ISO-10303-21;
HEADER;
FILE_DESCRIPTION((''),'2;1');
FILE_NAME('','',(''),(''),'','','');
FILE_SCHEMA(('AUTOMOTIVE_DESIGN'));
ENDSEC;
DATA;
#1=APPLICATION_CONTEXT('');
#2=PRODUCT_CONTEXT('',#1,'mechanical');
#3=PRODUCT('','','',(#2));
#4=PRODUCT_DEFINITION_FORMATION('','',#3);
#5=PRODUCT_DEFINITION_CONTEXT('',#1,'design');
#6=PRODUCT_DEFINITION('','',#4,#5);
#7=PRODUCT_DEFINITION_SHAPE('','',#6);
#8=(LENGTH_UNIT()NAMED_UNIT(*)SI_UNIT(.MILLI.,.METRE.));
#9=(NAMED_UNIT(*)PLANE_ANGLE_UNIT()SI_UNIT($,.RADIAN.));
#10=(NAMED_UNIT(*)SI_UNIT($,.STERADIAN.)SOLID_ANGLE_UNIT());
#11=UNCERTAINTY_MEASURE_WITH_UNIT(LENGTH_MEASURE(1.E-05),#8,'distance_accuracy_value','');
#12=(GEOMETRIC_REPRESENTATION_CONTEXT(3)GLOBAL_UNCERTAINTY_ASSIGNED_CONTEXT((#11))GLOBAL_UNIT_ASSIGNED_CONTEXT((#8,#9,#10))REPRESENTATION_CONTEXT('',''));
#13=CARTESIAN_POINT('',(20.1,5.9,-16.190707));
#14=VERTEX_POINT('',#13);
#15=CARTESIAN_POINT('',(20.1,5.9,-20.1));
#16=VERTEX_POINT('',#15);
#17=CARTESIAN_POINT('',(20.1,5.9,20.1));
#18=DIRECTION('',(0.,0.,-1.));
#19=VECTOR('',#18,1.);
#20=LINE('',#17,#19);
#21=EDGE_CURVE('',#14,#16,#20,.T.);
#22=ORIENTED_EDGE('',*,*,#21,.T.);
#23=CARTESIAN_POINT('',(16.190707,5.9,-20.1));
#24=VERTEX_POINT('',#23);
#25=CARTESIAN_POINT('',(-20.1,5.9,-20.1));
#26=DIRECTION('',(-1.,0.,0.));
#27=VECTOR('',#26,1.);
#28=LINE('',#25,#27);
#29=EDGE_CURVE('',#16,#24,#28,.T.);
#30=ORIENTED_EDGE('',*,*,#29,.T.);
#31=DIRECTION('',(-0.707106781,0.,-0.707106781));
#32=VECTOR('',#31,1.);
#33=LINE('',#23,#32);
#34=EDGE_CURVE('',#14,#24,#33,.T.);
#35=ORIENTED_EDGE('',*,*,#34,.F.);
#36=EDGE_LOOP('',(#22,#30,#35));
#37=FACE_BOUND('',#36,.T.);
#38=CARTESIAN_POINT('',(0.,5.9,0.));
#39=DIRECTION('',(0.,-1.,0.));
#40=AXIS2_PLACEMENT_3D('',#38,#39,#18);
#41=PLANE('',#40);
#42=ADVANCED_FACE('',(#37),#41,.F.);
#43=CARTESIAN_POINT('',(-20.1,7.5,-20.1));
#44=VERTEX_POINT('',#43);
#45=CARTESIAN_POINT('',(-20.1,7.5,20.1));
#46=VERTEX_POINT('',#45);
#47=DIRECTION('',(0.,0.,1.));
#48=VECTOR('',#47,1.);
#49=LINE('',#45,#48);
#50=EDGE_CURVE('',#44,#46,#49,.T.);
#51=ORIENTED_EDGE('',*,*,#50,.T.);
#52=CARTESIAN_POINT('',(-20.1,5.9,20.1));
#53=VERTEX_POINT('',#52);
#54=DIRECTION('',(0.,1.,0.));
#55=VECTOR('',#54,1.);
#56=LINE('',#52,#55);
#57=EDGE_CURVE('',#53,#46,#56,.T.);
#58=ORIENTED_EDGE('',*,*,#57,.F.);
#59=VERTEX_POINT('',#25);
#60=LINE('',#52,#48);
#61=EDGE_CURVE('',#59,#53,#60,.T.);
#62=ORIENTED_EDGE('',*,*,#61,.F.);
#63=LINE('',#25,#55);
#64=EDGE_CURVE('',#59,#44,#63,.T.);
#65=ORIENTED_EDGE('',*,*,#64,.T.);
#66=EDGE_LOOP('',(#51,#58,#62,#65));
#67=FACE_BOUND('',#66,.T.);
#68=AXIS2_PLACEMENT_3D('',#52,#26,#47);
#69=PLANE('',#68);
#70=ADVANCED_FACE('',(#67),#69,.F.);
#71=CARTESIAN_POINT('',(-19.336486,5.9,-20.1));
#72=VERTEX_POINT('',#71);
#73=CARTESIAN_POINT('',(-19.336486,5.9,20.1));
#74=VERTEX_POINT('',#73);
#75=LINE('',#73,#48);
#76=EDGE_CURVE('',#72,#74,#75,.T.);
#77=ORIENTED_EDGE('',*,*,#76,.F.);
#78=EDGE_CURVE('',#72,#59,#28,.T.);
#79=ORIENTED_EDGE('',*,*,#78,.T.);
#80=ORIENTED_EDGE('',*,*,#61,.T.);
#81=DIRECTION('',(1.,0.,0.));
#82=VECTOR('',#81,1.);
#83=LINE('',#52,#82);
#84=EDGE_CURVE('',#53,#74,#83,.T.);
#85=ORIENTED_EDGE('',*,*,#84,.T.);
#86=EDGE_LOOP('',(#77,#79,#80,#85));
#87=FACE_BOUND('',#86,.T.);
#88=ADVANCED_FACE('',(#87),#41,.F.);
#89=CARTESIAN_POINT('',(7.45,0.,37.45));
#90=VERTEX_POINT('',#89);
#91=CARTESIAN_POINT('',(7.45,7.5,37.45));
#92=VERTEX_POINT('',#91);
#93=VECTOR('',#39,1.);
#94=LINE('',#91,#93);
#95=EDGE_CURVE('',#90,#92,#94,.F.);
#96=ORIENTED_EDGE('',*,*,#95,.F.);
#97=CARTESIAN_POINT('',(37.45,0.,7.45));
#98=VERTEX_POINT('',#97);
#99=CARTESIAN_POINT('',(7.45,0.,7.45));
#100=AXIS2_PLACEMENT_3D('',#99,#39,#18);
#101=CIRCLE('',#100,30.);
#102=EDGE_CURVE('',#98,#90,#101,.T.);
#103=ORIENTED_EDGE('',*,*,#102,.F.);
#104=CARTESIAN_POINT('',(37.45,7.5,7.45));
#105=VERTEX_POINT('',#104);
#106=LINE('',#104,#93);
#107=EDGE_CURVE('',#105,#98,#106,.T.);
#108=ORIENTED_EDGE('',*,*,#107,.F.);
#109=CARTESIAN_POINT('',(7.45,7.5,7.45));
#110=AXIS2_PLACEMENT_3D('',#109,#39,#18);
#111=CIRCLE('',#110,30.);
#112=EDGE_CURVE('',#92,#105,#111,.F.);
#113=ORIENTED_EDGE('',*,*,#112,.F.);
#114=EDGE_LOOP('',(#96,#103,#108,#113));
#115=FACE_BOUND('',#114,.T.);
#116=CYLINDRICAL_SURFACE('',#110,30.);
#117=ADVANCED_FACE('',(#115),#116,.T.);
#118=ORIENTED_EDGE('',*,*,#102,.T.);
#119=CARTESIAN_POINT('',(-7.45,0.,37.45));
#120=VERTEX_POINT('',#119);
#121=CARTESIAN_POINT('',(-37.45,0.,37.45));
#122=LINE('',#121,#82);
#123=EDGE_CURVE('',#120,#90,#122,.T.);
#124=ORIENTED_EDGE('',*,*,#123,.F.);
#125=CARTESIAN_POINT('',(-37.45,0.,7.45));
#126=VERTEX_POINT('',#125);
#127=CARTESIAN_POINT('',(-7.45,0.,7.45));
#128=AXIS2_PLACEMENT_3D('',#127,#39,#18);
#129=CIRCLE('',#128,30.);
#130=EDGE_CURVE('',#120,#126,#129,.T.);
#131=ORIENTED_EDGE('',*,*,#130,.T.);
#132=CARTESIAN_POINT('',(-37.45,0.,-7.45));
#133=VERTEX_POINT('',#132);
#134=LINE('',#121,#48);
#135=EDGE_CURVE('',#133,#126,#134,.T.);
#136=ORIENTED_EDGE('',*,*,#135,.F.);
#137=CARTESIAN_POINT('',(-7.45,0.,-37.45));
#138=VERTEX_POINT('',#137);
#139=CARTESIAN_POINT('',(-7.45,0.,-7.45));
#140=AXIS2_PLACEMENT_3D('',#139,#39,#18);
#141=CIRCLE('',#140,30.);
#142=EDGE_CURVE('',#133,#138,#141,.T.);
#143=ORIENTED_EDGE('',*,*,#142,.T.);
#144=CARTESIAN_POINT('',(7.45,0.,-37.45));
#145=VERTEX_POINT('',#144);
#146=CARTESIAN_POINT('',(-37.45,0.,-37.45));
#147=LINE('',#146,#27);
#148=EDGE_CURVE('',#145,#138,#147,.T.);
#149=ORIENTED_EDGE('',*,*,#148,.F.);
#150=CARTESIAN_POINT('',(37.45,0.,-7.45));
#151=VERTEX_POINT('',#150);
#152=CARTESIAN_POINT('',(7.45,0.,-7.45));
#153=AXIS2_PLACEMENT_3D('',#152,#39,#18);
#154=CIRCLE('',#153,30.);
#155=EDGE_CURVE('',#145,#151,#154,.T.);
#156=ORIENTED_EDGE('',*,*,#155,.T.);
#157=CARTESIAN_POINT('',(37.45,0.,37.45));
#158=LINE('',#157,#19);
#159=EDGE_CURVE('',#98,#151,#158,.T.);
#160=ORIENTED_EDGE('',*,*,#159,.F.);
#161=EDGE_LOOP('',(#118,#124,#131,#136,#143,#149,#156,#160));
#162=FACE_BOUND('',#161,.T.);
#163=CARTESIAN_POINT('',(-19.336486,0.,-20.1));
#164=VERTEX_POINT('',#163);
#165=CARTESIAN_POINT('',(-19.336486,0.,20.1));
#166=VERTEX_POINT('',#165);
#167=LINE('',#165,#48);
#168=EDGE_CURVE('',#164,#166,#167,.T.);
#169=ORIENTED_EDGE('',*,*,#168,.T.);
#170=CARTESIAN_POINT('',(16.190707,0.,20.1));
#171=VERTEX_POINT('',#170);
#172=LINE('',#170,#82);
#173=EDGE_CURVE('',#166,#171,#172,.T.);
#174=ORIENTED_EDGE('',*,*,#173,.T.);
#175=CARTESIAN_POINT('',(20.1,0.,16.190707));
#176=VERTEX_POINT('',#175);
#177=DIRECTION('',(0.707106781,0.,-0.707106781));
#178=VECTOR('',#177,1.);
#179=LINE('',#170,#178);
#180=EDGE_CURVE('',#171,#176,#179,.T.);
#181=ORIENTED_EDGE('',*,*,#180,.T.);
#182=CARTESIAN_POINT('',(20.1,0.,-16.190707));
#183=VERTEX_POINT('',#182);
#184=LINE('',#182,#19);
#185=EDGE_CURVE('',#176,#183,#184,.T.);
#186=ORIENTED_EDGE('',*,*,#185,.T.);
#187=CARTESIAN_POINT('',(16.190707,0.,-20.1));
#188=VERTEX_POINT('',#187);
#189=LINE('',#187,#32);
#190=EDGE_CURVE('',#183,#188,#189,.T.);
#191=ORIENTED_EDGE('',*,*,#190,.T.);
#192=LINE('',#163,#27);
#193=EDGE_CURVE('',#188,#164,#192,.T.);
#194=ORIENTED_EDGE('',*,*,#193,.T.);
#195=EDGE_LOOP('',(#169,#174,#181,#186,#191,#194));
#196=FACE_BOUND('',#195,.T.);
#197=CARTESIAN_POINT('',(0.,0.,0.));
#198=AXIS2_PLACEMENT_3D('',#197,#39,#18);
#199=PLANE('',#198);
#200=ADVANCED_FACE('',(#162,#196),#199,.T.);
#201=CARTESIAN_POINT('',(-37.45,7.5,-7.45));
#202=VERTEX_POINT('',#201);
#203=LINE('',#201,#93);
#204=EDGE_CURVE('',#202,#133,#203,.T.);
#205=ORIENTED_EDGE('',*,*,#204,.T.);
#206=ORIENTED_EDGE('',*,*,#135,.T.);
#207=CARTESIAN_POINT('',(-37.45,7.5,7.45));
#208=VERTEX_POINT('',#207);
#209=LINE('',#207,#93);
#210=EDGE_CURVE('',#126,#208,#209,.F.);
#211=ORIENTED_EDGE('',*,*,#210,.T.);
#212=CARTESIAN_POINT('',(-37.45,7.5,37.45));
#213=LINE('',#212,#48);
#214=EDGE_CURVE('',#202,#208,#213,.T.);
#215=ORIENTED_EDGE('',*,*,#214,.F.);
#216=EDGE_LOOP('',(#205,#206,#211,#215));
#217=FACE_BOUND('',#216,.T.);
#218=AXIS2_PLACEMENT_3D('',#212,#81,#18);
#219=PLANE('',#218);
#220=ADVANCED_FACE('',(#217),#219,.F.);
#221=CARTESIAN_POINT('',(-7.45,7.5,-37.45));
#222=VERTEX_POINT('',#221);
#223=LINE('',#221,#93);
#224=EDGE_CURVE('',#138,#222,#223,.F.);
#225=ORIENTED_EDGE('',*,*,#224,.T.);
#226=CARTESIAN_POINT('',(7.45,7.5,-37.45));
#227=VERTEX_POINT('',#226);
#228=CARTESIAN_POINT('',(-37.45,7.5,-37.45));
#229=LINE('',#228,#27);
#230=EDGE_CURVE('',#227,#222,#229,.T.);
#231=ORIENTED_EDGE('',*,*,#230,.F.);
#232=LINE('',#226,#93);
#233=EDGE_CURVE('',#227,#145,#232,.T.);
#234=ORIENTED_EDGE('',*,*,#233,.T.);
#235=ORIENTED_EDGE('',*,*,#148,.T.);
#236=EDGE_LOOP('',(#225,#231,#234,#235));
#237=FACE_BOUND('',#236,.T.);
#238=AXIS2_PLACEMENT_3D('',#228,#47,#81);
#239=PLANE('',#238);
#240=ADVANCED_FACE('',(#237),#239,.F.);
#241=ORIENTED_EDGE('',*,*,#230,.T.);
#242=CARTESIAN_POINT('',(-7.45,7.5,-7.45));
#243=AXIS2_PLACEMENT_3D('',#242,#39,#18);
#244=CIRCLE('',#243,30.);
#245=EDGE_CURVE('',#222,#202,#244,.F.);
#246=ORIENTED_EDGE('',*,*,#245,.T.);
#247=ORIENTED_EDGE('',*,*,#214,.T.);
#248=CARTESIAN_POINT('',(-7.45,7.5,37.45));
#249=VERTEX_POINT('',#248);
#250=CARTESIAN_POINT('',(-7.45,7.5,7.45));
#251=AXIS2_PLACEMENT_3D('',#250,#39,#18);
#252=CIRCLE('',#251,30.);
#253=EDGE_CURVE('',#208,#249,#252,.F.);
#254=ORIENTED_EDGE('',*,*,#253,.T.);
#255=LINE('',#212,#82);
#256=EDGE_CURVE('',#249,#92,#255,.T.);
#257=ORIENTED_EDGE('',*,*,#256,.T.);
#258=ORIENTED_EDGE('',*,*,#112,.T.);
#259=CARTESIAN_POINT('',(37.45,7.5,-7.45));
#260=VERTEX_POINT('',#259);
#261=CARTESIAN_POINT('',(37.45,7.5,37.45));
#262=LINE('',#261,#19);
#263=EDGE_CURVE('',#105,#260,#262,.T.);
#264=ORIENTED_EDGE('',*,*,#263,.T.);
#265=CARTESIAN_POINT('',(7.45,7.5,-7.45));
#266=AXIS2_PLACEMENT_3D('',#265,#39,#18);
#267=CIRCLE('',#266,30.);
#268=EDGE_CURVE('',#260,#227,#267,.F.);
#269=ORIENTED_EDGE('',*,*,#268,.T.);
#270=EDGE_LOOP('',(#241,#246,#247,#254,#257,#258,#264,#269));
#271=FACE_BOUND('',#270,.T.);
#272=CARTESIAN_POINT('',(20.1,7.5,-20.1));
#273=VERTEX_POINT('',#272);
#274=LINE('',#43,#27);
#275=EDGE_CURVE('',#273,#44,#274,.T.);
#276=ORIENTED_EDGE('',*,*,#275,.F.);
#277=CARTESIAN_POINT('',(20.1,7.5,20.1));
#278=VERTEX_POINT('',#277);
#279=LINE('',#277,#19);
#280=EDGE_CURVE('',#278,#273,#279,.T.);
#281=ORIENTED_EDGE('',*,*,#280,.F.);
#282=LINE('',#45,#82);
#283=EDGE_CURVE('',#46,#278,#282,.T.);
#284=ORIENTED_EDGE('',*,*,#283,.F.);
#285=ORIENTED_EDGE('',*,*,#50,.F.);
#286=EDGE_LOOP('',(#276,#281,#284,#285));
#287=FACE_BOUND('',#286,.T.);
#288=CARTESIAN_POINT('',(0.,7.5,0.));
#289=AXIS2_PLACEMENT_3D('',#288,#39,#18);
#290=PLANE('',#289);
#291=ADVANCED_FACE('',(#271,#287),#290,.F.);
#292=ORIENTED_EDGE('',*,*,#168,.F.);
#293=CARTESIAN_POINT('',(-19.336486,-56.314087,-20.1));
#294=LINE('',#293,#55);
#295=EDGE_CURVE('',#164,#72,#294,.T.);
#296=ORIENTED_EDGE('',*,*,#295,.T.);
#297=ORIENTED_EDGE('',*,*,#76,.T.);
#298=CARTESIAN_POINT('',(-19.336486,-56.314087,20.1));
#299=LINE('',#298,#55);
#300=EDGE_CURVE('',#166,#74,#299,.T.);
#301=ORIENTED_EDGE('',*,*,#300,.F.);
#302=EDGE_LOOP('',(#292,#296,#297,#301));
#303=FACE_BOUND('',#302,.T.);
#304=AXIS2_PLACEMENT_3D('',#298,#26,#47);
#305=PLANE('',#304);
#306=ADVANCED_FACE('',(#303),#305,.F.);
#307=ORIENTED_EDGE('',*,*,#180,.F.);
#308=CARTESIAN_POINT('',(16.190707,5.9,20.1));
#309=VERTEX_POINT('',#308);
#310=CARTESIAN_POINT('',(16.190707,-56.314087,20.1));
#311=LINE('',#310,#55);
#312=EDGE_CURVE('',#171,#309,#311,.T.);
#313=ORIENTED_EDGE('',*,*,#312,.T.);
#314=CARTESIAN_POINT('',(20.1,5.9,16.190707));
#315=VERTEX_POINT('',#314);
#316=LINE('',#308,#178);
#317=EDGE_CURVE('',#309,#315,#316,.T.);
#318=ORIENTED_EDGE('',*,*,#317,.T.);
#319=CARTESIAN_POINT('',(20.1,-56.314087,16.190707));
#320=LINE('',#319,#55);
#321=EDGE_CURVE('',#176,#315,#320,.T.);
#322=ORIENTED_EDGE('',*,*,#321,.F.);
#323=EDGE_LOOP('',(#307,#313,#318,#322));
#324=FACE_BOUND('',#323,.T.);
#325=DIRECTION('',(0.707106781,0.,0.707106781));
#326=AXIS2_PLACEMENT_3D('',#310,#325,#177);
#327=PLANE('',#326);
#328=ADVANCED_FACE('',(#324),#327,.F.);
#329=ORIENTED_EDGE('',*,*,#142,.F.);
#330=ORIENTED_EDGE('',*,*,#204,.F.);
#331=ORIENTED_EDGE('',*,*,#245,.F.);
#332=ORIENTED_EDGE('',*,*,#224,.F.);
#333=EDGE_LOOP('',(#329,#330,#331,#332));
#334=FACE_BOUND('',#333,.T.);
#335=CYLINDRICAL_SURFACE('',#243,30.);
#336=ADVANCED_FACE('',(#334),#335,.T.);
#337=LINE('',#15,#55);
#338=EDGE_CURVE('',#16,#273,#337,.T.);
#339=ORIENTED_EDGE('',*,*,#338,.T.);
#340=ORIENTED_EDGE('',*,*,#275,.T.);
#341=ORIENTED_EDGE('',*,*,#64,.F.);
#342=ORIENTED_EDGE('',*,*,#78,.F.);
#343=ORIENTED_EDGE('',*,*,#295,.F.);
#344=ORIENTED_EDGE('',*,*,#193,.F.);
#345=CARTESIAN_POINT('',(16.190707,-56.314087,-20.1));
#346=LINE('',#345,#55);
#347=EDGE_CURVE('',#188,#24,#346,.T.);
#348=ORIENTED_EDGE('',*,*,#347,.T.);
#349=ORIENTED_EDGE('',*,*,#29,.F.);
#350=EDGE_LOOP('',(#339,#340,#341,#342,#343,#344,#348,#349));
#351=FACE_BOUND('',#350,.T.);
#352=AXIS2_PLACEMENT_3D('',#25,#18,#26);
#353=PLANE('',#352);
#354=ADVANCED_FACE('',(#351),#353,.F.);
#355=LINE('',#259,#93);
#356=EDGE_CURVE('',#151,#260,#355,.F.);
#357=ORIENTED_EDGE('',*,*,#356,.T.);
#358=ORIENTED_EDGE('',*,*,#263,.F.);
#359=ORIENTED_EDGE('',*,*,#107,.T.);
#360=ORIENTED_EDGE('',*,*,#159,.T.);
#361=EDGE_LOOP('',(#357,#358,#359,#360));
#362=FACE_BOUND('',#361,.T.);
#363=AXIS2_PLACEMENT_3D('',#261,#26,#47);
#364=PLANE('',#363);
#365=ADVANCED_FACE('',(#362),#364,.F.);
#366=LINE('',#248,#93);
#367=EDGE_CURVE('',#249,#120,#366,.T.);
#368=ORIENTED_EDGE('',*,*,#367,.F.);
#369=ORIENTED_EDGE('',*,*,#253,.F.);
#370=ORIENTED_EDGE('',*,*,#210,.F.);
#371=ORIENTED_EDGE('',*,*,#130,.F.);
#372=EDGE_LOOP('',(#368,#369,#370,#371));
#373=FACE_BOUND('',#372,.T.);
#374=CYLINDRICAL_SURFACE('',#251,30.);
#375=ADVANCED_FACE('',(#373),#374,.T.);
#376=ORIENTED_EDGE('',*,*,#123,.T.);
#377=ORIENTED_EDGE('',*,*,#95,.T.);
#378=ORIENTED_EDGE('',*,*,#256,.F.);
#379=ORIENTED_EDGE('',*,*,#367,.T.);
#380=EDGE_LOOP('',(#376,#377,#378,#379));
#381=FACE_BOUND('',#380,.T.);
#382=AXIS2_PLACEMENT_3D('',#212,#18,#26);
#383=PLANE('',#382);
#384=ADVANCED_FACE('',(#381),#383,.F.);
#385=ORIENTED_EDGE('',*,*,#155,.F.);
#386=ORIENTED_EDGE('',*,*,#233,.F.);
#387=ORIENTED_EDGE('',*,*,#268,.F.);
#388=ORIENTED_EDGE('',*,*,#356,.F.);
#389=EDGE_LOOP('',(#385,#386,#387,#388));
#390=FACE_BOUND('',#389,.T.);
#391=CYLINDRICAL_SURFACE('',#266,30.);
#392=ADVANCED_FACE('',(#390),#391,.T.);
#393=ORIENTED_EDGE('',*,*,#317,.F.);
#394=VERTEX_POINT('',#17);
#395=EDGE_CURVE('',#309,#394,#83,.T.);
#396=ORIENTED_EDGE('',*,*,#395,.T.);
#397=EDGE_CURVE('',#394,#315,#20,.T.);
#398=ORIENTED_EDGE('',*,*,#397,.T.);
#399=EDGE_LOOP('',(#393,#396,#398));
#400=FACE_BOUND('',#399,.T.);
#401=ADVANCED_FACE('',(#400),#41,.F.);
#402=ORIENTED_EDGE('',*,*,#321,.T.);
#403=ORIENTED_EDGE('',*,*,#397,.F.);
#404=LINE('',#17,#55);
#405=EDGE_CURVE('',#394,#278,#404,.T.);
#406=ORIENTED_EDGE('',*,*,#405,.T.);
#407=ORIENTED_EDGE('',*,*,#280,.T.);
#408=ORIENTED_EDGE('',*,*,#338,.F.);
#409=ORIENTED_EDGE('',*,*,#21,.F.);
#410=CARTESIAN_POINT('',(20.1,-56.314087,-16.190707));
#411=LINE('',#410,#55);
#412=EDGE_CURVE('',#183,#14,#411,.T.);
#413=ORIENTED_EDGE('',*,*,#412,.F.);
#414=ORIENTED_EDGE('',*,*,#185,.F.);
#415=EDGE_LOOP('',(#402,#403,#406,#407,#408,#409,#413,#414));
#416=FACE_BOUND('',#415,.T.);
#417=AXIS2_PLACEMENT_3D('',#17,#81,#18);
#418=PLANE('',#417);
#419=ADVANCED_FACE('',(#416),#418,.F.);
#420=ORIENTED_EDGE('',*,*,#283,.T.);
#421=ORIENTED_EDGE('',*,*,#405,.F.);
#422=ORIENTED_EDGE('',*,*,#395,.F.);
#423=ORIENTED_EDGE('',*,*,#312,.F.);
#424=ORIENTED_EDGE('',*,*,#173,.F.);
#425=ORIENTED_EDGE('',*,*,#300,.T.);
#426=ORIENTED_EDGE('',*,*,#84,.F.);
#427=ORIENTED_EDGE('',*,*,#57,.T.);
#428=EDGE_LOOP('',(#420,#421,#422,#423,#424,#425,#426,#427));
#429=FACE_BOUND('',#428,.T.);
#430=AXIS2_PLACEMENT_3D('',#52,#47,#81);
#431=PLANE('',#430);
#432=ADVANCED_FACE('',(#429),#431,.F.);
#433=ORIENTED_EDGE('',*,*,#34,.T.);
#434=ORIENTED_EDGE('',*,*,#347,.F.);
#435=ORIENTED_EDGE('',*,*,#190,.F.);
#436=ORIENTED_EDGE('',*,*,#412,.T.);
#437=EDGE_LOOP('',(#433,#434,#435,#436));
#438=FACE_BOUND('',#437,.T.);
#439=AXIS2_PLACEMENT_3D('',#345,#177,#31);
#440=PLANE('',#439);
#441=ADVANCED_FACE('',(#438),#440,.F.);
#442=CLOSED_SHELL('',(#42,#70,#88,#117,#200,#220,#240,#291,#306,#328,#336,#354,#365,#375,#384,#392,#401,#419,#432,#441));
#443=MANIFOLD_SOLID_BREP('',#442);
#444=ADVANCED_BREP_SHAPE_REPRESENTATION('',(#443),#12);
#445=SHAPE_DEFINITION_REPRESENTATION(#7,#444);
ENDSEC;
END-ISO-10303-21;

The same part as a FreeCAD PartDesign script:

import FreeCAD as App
import Part
import Sketcher


def edges_at(feature, points):
    """Names of the edges that pass closest to the given points."""
    edges = feature.Shape.Edges
    near = lambda p: min(range(len(edges)), key=lambda i: edges[i].distToShape(Part.Vertex(*p))[0])
    return sorted({f"Edge{near(p) + 1}" for p in points})


def add_polygon(sketch, points):
    """Adds a closed chain of lines whose ends are joined by coincident constraints."""
    first, n = sketch.GeometryCount, len(points)
    for a, b in zip(points, points[1:] + points[:1]):
        sketch.addGeometry(Part.LineSegment(App.Vector(*a, 0), App.Vector(*b, 0)), False)
    for i in range(n):
        sketch.addConstraint(Sketcher.Constraint("Coincident", first + i, 2, first + (i + 1) % n, 1))

doc = App.newDocument("Part")
body = doc.addObject("PartDesign::Body", "Body")

sketch1 = body.newObject("Sketcher::SketchObject", "Sketch")
sketch1.AttachmentSupport = (doc.getObject("XZ_Plane"), [""])
sketch1.MapMode = "FlatFace"
add_polygon(sketch1, [(-37.45, -37.45), (-37.45, 37.45), (37.45, 37.45), (37.45, -37.45)])
sketch1.addConstraint(Sketcher.Constraint("Vertical", 0))
sketch1.addConstraint(Sketcher.Constraint("Horizontal", 1))
sketch1.addConstraint(Sketcher.Constraint("Vertical", 2))
sketch1.addConstraint(Sketcher.Constraint("Horizontal", 3))
sketch1.addConstraint(Sketcher.Constraint("Symmetric", 0, 2, 2, 2, -1, 1))
sketch1.addConstraint(Sketcher.Constraint("Equal", 3, 0))
sketch1.addConstraint(Sketcher.Constraint("DistanceX", 1, 1, 1, 2, 74.9))
pad1 = body.newObject("PartDesign::Pad", "Pad")
pad1.Profile = sketch1
pad1.Length = 7.5
pad1.Reversed = True

sketch2 = body.newObject("Sketcher::SketchObject", "Sketch001")
sketch2.AttachmentSupport = (doc.getObject("XZ_Plane"), [""])
sketch2.MapMode = "FlatFace"
sketch2.AttachmentOffset = App.Placement(App.Vector(0, 0, -7.5), App.Rotation())
add_polygon(sketch2, [(-20.1, -20.1), (-20.1, 20.1), (20.1, 20.1), (20.1, -20.1)])
sketch2.addConstraint(Sketcher.Constraint("Vertical", 0))
sketch2.addConstraint(Sketcher.Constraint("Horizontal", 1))
sketch2.addConstraint(Sketcher.Constraint("Vertical", 2))
sketch2.addConstraint(Sketcher.Constraint("Horizontal", 3))
sketch2.addConstraint(Sketcher.Constraint("Symmetric", 0, 2, 2, 2, -1, 1))
sketch2.addConstraint(Sketcher.Constraint("Equal", 3, 0))
sketch2.addConstraint(Sketcher.Constraint("DistanceX", 1, 1, 1, 2, 40.2))
pocket1 = body.newObject("PartDesign::Pocket", "Pocket")
pocket1.Profile = sketch2
pocket1.Length = 1.6
pocket1.Reversed = True

sketch3 = body.newObject("Sketcher::SketchObject", "Sketch002")
sketch3.AttachmentSupport = (doc.getObject("XZ_Plane"), [""])
sketch3.MapMode = "FlatFace"
sketch3.AttachmentOffset = App.Placement(App.Vector(0, 0, -5.9), App.Rotation())
add_polygon(sketch3, [(-19.336486, -20.1), (-19.336486, 20.1), (16.190707, 20.1), (20.1, 16.190707), (20.1, -16.190707), (16.190707, -20.1)])
sketch3.addConstraint(Sketcher.Constraint("Vertical", 0))
sketch3.addConstraint(Sketcher.Constraint("Horizontal", 1))
sketch3.addConstraint(Sketcher.Constraint("Vertical", 3))
sketch3.addConstraint(Sketcher.Constraint("Horizontal", 5))
sketch3.addConstraint(Sketcher.Constraint("Symmetric", 1, 2, 4, 2, -1))
sketch3.addConstraint(Sketcher.Constraint("Perpendicular", 2, 4))
sketch3.addConstraint(Sketcher.Constraint("Equal", 2, 4))
sketch3.addConstraint(Sketcher.Constraint("DistanceY", 0, 1, 0, 2, 40.2))
sketch3.addConstraint(Sketcher.Constraint("DistanceX", -1, 1, 2, 2, 20.1))
sketch3.addConstraint(Sketcher.Constraint("DistanceX", 1, 1, 1, 2, 35.527193))
sketch3.addConstraint(Sketcher.Constraint("DistanceY", 3, 2, 3, 1, 32.381415))
pocket2 = body.newObject("PartDesign::Pocket", "Pocket001")
pocket2.Profile = sketch3
pocket2.Length = 5.9
pocket2.Reversed = True
doc.recompute()

fillet = body.newObject("PartDesign::Fillet", "Fillet")
fillet.Base = (pocket2, edges_at(pocket2, [
    (37.45, 3.75, 37.45),
    (-37.45, 3.75, 37.45),
    (-37.45, 3.75, -37.45),
    (37.45, 3.75, -37.45),
]))
fillet.Radius = 30

doc.recompute()
